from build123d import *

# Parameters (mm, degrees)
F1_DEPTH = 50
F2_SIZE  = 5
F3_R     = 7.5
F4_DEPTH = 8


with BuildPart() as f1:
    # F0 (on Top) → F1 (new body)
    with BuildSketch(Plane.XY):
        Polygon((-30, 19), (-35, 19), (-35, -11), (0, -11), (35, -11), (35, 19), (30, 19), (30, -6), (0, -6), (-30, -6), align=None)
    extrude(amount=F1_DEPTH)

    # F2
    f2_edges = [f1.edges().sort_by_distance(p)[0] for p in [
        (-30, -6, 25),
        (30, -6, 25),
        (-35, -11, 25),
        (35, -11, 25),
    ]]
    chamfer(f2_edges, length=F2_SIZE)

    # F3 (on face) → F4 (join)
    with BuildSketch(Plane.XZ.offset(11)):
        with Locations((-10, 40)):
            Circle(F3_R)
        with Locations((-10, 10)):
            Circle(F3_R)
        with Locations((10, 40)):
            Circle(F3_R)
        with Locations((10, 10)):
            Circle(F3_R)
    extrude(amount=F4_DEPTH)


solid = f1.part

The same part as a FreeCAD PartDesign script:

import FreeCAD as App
import Part
import Sketcher
from FreeCAD import Vector
Q = App.Units.Quantity


def edges_at(feature, points):
    """Names of the edges that pass closest to the given points."""
    edges = feature.Shape.Edges
    near = lambda p: min(range(len(edges)), key=lambda i: edges[i].distToShape(Part.Vertex(*p))[0])
    return sorted({f"Edge{near(p) + 1}" for p in points})


def add_polygon(sketch, points):
    """Adds a closed chain of lines whose ends are joined by coincident constraints."""
    first, n = sketch.GeometryCount, len(points)
    for a, b in zip(points, points[1:] + points[:1]):
        sketch.addGeometry(Part.LineSegment(App.Vector(*a, 0), App.Vector(*b, 0)), False)
    for i in range(n):
        sketch.addConstraint(Sketcher.Constraint("Coincident", first + i, 2, first + (i + 1) % n, 1))

doc = App.newDocument("Part")
body = doc.addObject("PartDesign::Body", "Body")

sketch1 = doc.addObject("Sketcher::SketchObject", "Sketch")
body.addObject(sketch1)
sketch1.AttachmentSupport = (doc.XY_Plane, [""])
sketch1.MapMode = "FlatFace"
add_polygon(sketch1, [(-30, 19), (-35, 19), (-35, -11), (35, -11), (35, 19), (30, 19), (30, -6), (-30, -6)])
sketch1.addConstraint([
    Sketcher.Constraint("Horizontal", 0),
    Sketcher.Constraint("Vertical", 1),
    Sketcher.Constraint("Horizontal", 2),
    Sketcher.Constraint("Vertical", 3),
    Sketcher.Constraint("Horizontal", 4),
    Sketcher.Constraint("Vertical", 5),
    Sketcher.Constraint("Horizontal", 6),
    Sketcher.Constraint("Vertical", 7),
    Sketcher.Constraint("Symmetric", 0, 2, 3, 2, -2),
    Sketcher.Constraint("Equal", 0, 4),
    Sketcher.Constraint("DistanceX", 0, 2, 0, 1, Q("5 mm")),
    Sketcher.Constraint("DistanceX", 2, 1, 2, 2, Q("70 mm")),
    Sketcher.Constraint("DistanceY", 1, 2, 1, 1, Q("30 mm")),
    Sketcher.Constraint("DistanceY", 5, 2, 5, 1, Q("25 mm")),
    Sketcher.Constraint("DistanceY", -1, 1, 0, 2, Q("19 mm")),
])
pad1 = doc.addObject("PartDesign::Pad", "Pad")
body.addObject(pad1)
pad1.Profile = sketch1
pad1.Length = 50
doc.recompute()

chamfer = doc.addObject("PartDesign::Chamfer", "Chamfer")
body.addObject(chamfer)
chamfer.Base = (pad1, edges_at(pad1, [
    (-30, -6, 25),
    (30, -6, 25),
    (-35, -11, 25),
    (35, -11, 25),
]))
chamfer.Size = 5

sketch2 = doc.addObject("Sketcher::SketchObject", "Sketch001")
body.addObject(sketch2)
sketch2.AttachmentSupport = (doc.XZ_Plane, [""])
sketch2.MapMode = "FlatFace"
sketch2.AttachmentOffset = App.Placement(Vector(0, 0, 11), App.Rotation())
sketch2.addGeometry([
    Part.Circle(Vector(-10, 40, 0), Vector(0, 0, 1), 8),
    Part.Circle(Vector(-10, 10, 0), Vector(0, 0, 1), 8),
    Part.Circle(Vector(10, 40, 0), Vector(0, 0, 1), 8),
    Part.Circle(Vector(10, 10, 0), Vector(0, 0, 1), 8),
], False)
sketch2.addConstraint([
    Sketcher.Constraint("Equal", 0, 1),
    Sketcher.Constraint("Equal", 1, 2),
    Sketcher.Constraint("Equal", 2, 3),
    Sketcher.Constraint("Symmetric", 0, 3, 2, 3, -2),
    Sketcher.Constraint("Symmetric", 1, 3, 3, 3, -2),
    Sketcher.Constraint("Vertical", 0, 3, 1, 3),
    Sketcher.Constraint("Diameter", 0, Q("15 mm")),
    Sketcher.Constraint("DistanceX", 0, 3, -1, 1, Q("10 mm")),
    Sketcher.Constraint("DistanceY", -1, 1, 0, 3, Q("40 mm")),
    Sketcher.Constraint("DistanceY", -1, 1, 1, 3, Q("10 mm")),
])
pad2 = doc.addObject("PartDesign::Pad", "Pad001")
body.addObject(pad2)
pad2.Profile = sketch2
pad2.Length = 8

doc.recompute()
